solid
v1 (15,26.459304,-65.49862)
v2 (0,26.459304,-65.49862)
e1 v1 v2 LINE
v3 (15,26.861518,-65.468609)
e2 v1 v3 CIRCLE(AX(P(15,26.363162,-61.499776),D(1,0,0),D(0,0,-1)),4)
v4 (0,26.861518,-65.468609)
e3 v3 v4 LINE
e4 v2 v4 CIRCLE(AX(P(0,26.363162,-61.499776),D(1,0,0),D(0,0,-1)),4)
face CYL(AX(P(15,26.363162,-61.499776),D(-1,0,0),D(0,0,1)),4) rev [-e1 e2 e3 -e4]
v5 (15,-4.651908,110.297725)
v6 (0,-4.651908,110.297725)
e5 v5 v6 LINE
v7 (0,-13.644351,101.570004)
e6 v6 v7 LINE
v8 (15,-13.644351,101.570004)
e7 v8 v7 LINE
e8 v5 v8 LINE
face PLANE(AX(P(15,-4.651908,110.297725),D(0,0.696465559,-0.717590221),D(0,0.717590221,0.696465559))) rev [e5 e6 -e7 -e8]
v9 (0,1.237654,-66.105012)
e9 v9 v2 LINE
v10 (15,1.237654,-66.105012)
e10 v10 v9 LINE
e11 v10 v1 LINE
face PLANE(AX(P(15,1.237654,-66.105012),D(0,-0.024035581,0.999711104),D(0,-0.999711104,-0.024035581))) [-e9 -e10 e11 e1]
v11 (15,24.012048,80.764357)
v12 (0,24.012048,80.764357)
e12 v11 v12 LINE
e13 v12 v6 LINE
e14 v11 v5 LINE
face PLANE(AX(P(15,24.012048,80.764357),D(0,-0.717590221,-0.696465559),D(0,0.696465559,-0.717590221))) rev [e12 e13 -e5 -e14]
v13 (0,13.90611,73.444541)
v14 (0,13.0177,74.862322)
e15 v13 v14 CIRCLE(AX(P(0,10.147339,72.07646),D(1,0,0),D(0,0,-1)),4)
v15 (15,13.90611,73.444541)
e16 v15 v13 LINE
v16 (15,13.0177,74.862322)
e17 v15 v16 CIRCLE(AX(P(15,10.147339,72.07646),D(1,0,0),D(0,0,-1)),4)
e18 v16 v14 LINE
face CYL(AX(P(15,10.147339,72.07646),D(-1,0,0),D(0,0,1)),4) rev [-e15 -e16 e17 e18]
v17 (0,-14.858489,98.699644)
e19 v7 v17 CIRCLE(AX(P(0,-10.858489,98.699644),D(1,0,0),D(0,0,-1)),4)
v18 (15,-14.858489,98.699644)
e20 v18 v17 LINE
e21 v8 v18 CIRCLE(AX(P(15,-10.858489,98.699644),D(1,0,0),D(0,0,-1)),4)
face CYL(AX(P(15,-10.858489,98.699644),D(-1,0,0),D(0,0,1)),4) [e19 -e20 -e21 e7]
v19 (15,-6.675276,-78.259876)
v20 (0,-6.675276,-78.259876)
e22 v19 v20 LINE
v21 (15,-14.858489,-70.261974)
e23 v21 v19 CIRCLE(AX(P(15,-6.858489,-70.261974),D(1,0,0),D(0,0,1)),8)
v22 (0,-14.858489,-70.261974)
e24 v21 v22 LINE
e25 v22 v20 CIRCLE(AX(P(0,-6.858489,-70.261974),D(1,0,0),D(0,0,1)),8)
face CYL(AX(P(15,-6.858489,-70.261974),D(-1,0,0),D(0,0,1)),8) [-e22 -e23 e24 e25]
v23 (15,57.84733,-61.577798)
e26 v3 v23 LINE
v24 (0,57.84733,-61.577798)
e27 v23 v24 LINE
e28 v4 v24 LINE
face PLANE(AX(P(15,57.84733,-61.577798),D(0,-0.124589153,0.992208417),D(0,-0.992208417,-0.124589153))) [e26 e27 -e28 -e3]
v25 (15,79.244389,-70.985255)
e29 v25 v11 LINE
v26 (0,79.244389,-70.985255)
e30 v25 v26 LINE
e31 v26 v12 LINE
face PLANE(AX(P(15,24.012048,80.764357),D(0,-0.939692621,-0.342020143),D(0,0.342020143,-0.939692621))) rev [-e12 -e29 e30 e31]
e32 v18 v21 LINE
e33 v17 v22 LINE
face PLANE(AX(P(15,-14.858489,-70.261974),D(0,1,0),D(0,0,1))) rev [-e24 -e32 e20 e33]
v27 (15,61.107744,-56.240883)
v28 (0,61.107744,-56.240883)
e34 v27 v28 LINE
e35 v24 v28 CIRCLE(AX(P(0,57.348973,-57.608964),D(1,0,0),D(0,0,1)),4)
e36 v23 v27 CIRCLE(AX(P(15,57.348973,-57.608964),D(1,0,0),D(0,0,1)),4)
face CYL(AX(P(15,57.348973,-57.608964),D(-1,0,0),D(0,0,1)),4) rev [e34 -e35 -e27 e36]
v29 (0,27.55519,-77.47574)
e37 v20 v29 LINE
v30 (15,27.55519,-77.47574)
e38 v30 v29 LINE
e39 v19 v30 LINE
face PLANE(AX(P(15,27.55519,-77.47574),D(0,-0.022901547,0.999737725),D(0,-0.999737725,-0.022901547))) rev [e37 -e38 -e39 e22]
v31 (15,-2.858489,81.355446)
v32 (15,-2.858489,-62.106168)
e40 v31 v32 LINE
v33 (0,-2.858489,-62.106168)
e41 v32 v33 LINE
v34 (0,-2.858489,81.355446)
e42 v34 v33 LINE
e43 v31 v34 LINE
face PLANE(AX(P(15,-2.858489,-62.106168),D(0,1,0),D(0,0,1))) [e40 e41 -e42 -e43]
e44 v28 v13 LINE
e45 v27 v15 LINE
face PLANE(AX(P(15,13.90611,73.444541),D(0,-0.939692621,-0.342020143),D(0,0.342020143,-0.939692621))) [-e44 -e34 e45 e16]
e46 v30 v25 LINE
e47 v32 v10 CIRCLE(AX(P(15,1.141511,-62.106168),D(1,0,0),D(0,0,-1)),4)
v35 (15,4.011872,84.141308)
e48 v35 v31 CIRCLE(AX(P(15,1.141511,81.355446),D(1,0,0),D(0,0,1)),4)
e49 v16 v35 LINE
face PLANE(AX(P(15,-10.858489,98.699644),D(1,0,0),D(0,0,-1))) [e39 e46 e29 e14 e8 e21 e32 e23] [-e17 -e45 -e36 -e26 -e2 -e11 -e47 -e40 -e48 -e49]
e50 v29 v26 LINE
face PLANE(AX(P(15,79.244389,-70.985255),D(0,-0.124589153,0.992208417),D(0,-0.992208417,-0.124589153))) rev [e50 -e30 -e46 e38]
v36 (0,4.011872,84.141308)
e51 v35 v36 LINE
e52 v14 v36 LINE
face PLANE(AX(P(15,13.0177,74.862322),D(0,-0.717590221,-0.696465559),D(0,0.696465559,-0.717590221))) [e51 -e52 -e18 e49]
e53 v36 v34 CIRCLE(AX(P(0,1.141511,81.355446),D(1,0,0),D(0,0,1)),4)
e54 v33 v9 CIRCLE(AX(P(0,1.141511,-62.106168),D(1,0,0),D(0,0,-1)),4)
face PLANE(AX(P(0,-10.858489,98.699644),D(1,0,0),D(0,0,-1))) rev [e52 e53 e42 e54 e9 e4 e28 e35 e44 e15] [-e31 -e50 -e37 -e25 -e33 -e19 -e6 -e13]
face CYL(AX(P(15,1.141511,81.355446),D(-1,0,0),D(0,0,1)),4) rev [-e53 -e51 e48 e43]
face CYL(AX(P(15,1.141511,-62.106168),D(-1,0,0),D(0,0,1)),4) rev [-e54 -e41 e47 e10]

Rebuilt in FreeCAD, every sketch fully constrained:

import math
import FreeCAD as App
import Part
import Sketcher
Q = App.Units.Quantity

doc = App.newDocument("Part")
body = doc.addObject("PartDesign::Body", "Body")

sketch1 = body.newObject("Sketcher::SketchObject", "Sketch")
sketch1.AttachmentSupport = (doc.getObject("YZ_Plane"), [""])
sketch1.MapMode = "FlatFace"
sketch1.addGeometry([
    Part.LineSegment(App.Vector(79.244389, -70.985255, 0), App.Vector(24.012048, 80.764357, 0)),
    Part.LineSegment(App.Vector(24.012048, 80.764357, 0), App.Vector(-4.651908, 110.297725, 0)),
    Part.LineSegment(App.Vector(-4.651908, 110.297725, 0), App.Vector(-13.644351, 101.570004, 0)),
    Part.ArcOfCircle(Part.Circle(App.Vector(-10.858489, 98.699644, 0), App.Vector(0, 0, 1), 4), math.radians(134.144119), math.radians(180)),
    Part.LineSegment(App.Vector(-14.858489, 98.699644, 0), App.Vector(-14.858489, -70.261974, 0)),
    Part.ArcOfCircle(Part.Circle(App.Vector(-6.858489, -70.261974, 0), App.Vector(0, 0, 1), 8), math.radians(180), math.radians(271.312277)),
    Part.LineSegment(App.Vector(-6.675276, -78.259876, 0), App.Vector(27.55519, -77.47574, 0)),
    Part.LineSegment(App.Vector(27.55519, -77.47574, 0), App.Vector(79.244389, -70.985255, 0)),
    Part.LineSegment(App.Vector(13.90611, 73.444541, 0), App.Vector(61.107744, -56.240883, 0)),
    Part.ArcOfCircle(Part.Circle(App.Vector(57.348973, -57.608964, 0), App.Vector(0, 0, 1), 4), math.radians(-82.842969), math.radians(20)),
    Part.LineSegment(App.Vector(57.84733, -61.577798, 0), App.Vector(26.861518, -65.468609, 0)),
    Part.ArcOfCircle(Part.Circle(App.Vector(26.363162, -61.499776, 0), App.Vector(0, 0, 1), 4), math.radians(-88.62273), math.radians(-82.84297)),
    Part.LineSegment(App.Vector(26.459304, -65.49862, 0), App.Vector(1.237654, -66.105012, 0)),
    Part.ArcOfCircle(Part.Circle(App.Vector(1.141511, -62.106168, 0), App.Vector(0, 0, 1), 4), math.radians(180), math.radians(271.37727)),
    Part.LineSegment(App.Vector(-2.858489, -62.106168, 0), App.Vector(-2.858489, 81.355446, 0)),
    Part.ArcOfCircle(Part.Circle(App.Vector(1.141511, 81.355446, 0), App.Vector(0, 0, 1), 4), math.radians(44.144119), math.radians(180)),
    Part.LineSegment(App.Vector(4.011872, 84.141308, 0), App.Vector(13.0177, 74.862322, 0)),
    Part.ArcOfCircle(Part.Circle(App.Vector(10.147339, 72.07646, 0), App.Vector(0, 0, 1), 4), math.radians(20), math.radians(44.144119)),
], False)
sketch1.addConstraint([
    Sketcher.Constraint("Coincident", 0, 2, 1, 1),
    Sketcher.Constraint("Coincident", 1, 2, 2, 1),
    Sketcher.Constraint("Coincident", 2, 2, 3, 1),
    Sketcher.Constraint("Coincident", 3, 2, 4, 1),
    Sketcher.Constraint("Coincident", 4, 2, 5, 1),
    Sketcher.Constraint("Coincident", 5, 2, 6, 1),
    Sketcher.Constraint("Coincident", 6, 2, 7, 1),
    Sketcher.Constraint("Coincident", 7, 2, 0, 1),
    Sketcher.Constraint("Coincident", 8, 2, 9, 2),
    Sketcher.Constraint("Coincident", 9, 1, 10, 1),
    Sketcher.Constraint("Coincident", 10, 2, 11, 2),
    Sketcher.Constraint("Coincident", 11, 1, 12, 1),
    Sketcher.Constraint("Coincident", 12, 2, 13, 2),
    Sketcher.Constraint("Coincident", 13, 1, 14, 1),
    Sketcher.Constraint("Coincident", 14, 2, 15, 2),
    Sketcher.Constraint("Coincident", 15, 1, 16, 1),
    Sketcher.Constraint("Coincident", 16, 2, 17, 2),
    Sketcher.Constraint("Coincident", 17, 1, 8, 1),
    Sketcher.Constraint("Vertical", 4),
    Sketcher.Constraint("Vertical", 14),
    Sketcher.Constraint("Radius", 3, Q("4 mm")),
    Sketcher.Constraint("Radius", 5, Q("8 mm")),
    Sketcher.Constraint("Radius", 9, Q("4 mm")),
    Sketcher.Constraint("Radius", 11, Q("4 mm")),
    Sketcher.Constraint("Radius", 13, Q("4 mm")),
    Sketcher.Constraint("Radius", 15, Q("4 mm")),
    Sketcher.Constraint("Radius", 17, Q("4 mm")),
    Sketcher.Constraint("DistanceX", 5, 3, 13, 3, Q("8 mm")),
    Sketcher.Constraint("DistanceX", -1, 1, 16, 2, Q("13.0177 mm")),
    Sketcher.Constraint("DistanceY", 5, 3, 11, 3, Q("8.762199 mm")),
    Sketcher.Constraint("DistanceX", 2, 2, 0, 2, Q("37.656399 mm")),
    Sketcher.Constraint("DistanceY", 4, 2, 11, 3, Q("8.762199 mm")),
    Sketcher.Constraint("DistanceY", 5, 2, 5, 3, Q("7.997902 mm")),
    Sketcher.Constraint("DistanceX", 6, 2, 7, 2, Q("51.6892 mm")),
    Sketcher.Constraint("DistanceX", 15, 3, 17, 1, Q("12.764598 mm")),
    Sketcher.Constraint("Distance", 12, Q("25.228939 mm")),
    Sketcher.Constraint("Distance", 16, Q("12.930758 mm")),
    Sketcher.Constraint("DistanceY", 4, 2, 4, 1, Q("168.961618 mm")),
    Sketcher.Constraint("DistanceY", 14, 1, 14, 2, Q("143.461613 mm")),
    Sketcher.Constraint("DistanceX", 3, 3, -1, 1, Q("10.858489 mm")),
    Sketcher.Constraint("DistanceX", -1, 1, 11, 3, Q("26.363162 mm")),
    Sketcher.Constraint("DistanceX", -1, 1, 17, 3, Q("10.147339 mm")),
    Sketcher.Constraint("DistanceY", -1, 1, 17, 3, Q("72.07646 mm")),
    Sketcher.Constraint("DistanceX", 2, 2, -1, 1, Q("13.644351 mm")),
    Sketcher.Constraint("DistanceX", -1, 1, 6, 2, Q("27.55519 mm")),
    Sketcher.Constraint("DistanceY", 6, 2, -1, 1, Q("77.47574 mm")),
    Sketcher.Constraint("DistanceX", -1, 1, 9, 1, Q("57.84733 mm")),
    Sketcher.Constraint("DistanceX", -1, 1, 10, 2, Q("26.861518 mm")),
    Sketcher.Constraint("DistanceY", 10, 2, -1, 1, Q("65.468609 mm")),
    Sketcher.Constraint("DistanceY", 11, 1, -1, 1, Q("65.49862 mm")),
    Sketcher.Constraint("DistanceX", 5, 3, 9, 3, Q("64.207462 mm")),
    Sketcher.Constraint("DistanceY", 5, 3, 9, 3, Q("12.65301 mm")),
    Sketcher.Constraint("DistanceY", 11, 3, 3, 3, Q("160.199419 mm")),
    Sketcher.Constraint("DistanceY", 13, 3, 3, 3, Q("160.805811 mm")),
    Sketcher.Constraint("DistanceY", 11, 3, 15, 3, Q("142.855221 mm")),
    Sketcher.Constraint("DistanceY", 0, 2, 15, 3, Q("0.591089 mm")),
    Sketcher.Constraint("DistanceX", 3, 3, 1, 2, Q("6.206581 mm")),
    Sketcher.Constraint("DistanceY", 3, 3, 1, 2, Q("11.598082 mm")),
    Sketcher.Constraint("DistanceY", 7, 2, 9, 3, Q("13.376291 mm")),
    Sketcher.Constraint("DistanceX", 9, 3, 8, 2, Q("3.75877 mm")),
    Sketcher.Constraint("DistanceY", 5, 2, 13, 1, Q("16.153708 mm")),
])
pad1 = body.newObject("PartDesign::Pad", "Pad")
pad1.Profile = sketch1
pad1.Length = 15

doc.recompute()
